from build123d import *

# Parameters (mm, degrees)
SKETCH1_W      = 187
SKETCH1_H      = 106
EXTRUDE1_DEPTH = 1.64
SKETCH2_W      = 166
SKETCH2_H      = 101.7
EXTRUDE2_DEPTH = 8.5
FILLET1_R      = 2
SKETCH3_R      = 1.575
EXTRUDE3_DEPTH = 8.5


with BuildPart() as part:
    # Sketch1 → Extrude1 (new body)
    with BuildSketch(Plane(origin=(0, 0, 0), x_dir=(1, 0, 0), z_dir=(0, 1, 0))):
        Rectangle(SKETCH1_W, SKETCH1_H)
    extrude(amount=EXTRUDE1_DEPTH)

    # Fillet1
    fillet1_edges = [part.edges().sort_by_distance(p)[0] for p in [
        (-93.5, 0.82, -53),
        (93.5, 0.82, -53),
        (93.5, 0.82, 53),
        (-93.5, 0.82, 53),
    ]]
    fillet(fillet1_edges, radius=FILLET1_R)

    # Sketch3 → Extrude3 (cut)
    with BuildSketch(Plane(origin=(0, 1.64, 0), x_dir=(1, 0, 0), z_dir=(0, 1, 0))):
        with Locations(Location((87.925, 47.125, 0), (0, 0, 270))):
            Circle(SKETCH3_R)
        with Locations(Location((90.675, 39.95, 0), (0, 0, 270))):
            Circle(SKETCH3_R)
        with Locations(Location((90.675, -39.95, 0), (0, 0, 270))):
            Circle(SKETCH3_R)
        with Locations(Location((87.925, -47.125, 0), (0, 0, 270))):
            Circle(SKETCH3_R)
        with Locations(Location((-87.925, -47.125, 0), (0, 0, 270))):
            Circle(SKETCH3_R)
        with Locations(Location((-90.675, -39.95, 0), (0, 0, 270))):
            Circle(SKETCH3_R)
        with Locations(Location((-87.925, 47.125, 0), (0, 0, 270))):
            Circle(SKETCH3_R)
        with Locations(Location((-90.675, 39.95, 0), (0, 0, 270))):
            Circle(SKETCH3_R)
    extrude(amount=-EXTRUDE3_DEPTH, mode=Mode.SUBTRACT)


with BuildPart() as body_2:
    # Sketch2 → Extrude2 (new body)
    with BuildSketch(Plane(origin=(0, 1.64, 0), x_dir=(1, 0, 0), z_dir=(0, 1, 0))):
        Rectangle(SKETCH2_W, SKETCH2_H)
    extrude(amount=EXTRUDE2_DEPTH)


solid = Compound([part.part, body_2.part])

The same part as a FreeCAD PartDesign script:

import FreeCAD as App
import Part
import Sketcher
Q = App.Units.Quantity


def edges_at(feature, points):
    """Names of the edges that pass closest to the given points."""
    edges = feature.Shape.Edges
    near = lambda p: min(range(len(edges)), key=lambda i: edges[i].distToShape(Part.Vertex(*p))[0])
    return sorted({f"Edge{near(p) + 1}" for p in points})


def add_polygon(sketch, points):
    """Adds a closed chain of lines whose ends are joined by coincident constraints."""
    first, n = sketch.GeometryCount, len(points)
    for a, b in zip(points, points[1:] + points[:1]):
        sketch.addGeometry(Part.LineSegment(App.Vector(*a, 0), App.Vector(*b, 0)), False)
    for i in range(n):
        sketch.addConstraint(Sketcher.Constraint("Coincident", first + i, 2, first + (i + 1) % n, 1))

doc = App.newDocument("Part")
body = doc.addObject("PartDesign::Body", "Body")

sketch1 = doc.addObject("Sketcher::SketchObject", "Sketch")
body.addObject(sketch1)
sketch1.AttachmentSupport = (doc.XZ_Plane, [""])
sketch1.MapMode = "FlatFace"
add_polygon(sketch1, [(-94, -53), (-94, 53), (94, 53), (94, -53)])
sketch1.addConstraint([
    Sketcher.Constraint("Vertical", 0),
    Sketcher.Constraint("Horizontal", 1),
    Sketcher.Constraint("Vertical", 2),
    Sketcher.Constraint("Horizontal", 3),
    Sketcher.Constraint("Symmetric", 0, 2, 2, 2, -1, 1),
    Sketcher.Constraint("DistanceX", 1, 1, 1, 2, Q("187 mm")),
    Sketcher.Constraint("DistanceY", 0, 1, 0, 2, Q("106 mm")),
])
pad1 = doc.addObject("PartDesign::Pad", "Pad")
body.addObject(pad1)
pad1.Profile = sketch1
pad1.Length = 1.64
pad1.Reversed = True
doc.recompute()

fillet = doc.addObject("PartDesign::Fillet", "Fillet")
body.addObject(fillet)
fillet.Base = (pad1, edges_at(pad1, [
    (-93.5, 0.82, -53),
    (93.5, 0.82, -53),
    (93.5, 0.82, 53),
    (-93.5, 0.82, 53),
]))
fillet.Radius = 2

sketch2 = doc.addObject("Sketcher::SketchObject", "Sketch001")
body.addObject(sketch2)
sketch2.AttachmentSupport = (doc.XZ_Plane, [""])
sketch2.MapMode = "FlatFace"
sketch2.AttachmentOffset = App.Placement(App.Vector(0, 0, -1.64), App.Rotation())
sketch2.addGeometry([
    Part.Circle(App.Vector(87.9, -47.1, 0), App.Vector(0, 0, 1), 1.6),
    Part.Circle(App.Vector(90.7, -40, 0), App.Vector(0, 0, 1), 1.6),
    Part.Circle(App.Vector(90.7, 40, 0), App.Vector(0, 0, 1), 1.6),
    Part.Circle(App.Vector(87.9, 47.1, 0), App.Vector(0, 0, 1), 1.6),
    Part.Circle(App.Vector(-87.9, 47.1, 0), App.Vector(0, 0, 1), 1.6),
    Part.Circle(App.Vector(-90.7, 40, 0), App.Vector(0, 0, 1), 1.6),
    Part.Circle(App.Vector(-87.9, -47.1, 0), App.Vector(0, 0, 1), 1.6),
    Part.Circle(App.Vector(-90.7, -40, 0), App.Vector(0, 0, 1), 1.6),
], False)
sketch2.addConstraint([
    Sketcher.Constraint("Equal", 0, 1),
    Sketcher.Constraint("Equal", 1, 2),
    Sketcher.Constraint("Equal", 2, 3),
    Sketcher.Constraint("Equal", 3, 4),
    Sketcher.Constraint("Equal", 4, 5),
    Sketcher.Constraint("Equal", 5, 6),
    Sketcher.Constraint("Equal", 6, 7),
    Sketcher.Constraint("Symmetric", 0, 3, 4, 3, -1, 1),
    Sketcher.Constraint("Symmetric", 1, 3, 5, 3, -1, 1),
    Sketcher.Constraint("Symmetric", 3, 3, 6, 3, -1, 1),
    Sketcher.Constraint("Symmetric", 2, 3, 7, 3, -1, 1),
    Sketcher.Constraint("Symmetric", 3, 3, 4, 3, -2),
    Sketcher.Constraint("Symmetric", 2, 3, 5, 3, -2),
    Sketcher.Constraint("Diameter", 0, Q("3.15 mm")),
    Sketcher.Constraint("DistanceY", 1, 3, 2, 3, Q("79.9 mm")),
    Sketcher.Constraint("DistanceX", 4, 3, 2, 3, Q("178.6 mm")),
    Sketcher.Constraint("DistanceX", 0, 3, 1, 3, Q("2.75 mm")),
    Sketcher.Constraint("DistanceY", 0, 3, 3, 3, Q("94.25 mm")),
])
pocket1 = doc.addObject("PartDesign::Pocket", "Pocket")
body.addObject(pocket1)
pocket1.Profile = sketch2
pocket1.Length = 8.5
pocket1.Reversed = True
body2 = doc.addObject("PartDesign::Body", "Body001")

sketch3 = doc.addObject("Sketcher::SketchObject", "Sketch002")
body2.addObject(sketch3)
sketch3.AttachmentSupport = (doc.getObject("XZ_Plane001"), [""])
sketch3.MapMode = "FlatFace"
sketch3.AttachmentOffset = App.Placement(App.Vector(0, 0, -1.64), App.Rotation())
add_polygon(sketch3, [(-83, -51), (-83, 51), (83, 51), (83, -51)])
sketch3.addConstraint([
    Sketcher.Constraint("Vertical", 0),
    Sketcher.Constraint("Horizontal", 1),
    Sketcher.Constraint("Vertical", 2),
    Sketcher.Constraint("Horizontal", 3),
    Sketcher.Constraint("Symmetric", 0, 2, 2, 2, -1, 1),
    Sketcher.Constraint("DistanceX", 1, 1, 1, 2, Q("166 mm")),
    Sketcher.Constraint("DistanceY", 0, 1, 0, 2, Q("101.7 mm")),
])
pad2 = doc.addObject("PartDesign::Pad", "Pad001")
body2.addObject(pad2)
pad2.Profile = sketch3
pad2.Length = 8.5
pad2.Reversed = True

doc.recompute()
